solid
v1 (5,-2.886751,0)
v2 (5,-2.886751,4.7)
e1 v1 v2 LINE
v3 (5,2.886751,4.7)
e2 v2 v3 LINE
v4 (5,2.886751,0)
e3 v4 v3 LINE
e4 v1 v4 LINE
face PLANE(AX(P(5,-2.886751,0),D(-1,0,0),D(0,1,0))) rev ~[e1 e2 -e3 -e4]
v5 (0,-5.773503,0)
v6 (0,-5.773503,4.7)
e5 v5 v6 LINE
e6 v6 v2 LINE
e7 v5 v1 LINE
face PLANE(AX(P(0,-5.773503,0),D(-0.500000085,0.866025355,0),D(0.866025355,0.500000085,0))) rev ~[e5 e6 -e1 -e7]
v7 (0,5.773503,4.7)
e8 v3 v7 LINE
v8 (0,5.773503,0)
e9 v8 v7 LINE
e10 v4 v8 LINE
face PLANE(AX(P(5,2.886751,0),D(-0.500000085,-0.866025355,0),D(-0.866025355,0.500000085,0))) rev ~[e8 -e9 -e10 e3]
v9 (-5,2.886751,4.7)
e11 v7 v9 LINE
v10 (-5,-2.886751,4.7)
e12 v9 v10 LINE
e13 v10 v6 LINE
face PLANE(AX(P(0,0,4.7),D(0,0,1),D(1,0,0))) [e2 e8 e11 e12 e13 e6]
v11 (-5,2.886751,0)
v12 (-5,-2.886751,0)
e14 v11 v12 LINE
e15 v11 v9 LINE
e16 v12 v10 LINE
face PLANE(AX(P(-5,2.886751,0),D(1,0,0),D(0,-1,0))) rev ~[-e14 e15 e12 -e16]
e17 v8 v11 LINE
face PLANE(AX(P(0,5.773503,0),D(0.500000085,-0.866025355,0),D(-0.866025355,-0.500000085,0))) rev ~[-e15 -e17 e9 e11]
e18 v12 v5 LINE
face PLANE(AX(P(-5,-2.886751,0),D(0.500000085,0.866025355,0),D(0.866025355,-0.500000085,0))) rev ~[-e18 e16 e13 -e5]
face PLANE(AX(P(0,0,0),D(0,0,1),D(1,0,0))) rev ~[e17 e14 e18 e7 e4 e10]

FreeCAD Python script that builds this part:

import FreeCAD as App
import Part
import Sketcher
Q = App.Units.Quantity


def add_polygon(sketch, points):
    """Adds a closed chain of lines whose ends are joined by coincident constraints."""
    first, n = sketch.GeometryCount, len(points)
    for a, b in zip(points, points[1:] + points[:1]):
        sketch.addGeometry(Part.LineSegment(App.Vector(*a, 0), App.Vector(*b, 0)), False)
    for i in range(n):
        sketch.addConstraint(Sketcher.Constraint("Coincident", first + i, 2, first + (i + 1) % n, 1))

doc = App.newDocument("Part")
params = doc.addObject("Spreadsheet::Sheet", "Params")
for row, (alias, value) in enumerate([
    ("pad1_length", "4.7 mm"),
], start=1):
    params.set(f"A{row}", alias)
    params.set(f"B{row}", "=" + value)
    params.setAlias(f"B{row}", alias)

body = doc.addObject("PartDesign::Body", "Body")

sketch1 = body.newObject("Sketcher::SketchObject", "Sketch")
sketch1.AttachmentSupport = (doc.getObject("XY_Plane"), [""])
sketch1.MapMode = "FlatFace"
add_polygon(sketch1, [(5, 3), (0, 6), (-5, 3), (-5, -3), (0, -6), (5, -3)])
sketch1.addConstraint(Sketcher.Constraint("Vertical", 2))
sketch1.addConstraint(Sketcher.Constraint("Vertical", 5))
sketch1.addConstraint(Sketcher.Constraint("Symmetric", 0, 2, 3, 2, -1, 1))
sketch1.addConstraint(Sketcher.Constraint("Symmetric", 1, 2, 4, 2, -1, 1))
sketch1.addConstraint(Sketcher.Constraint("PointOnObject", 0, 2, -2))
sketch1.addConstraint(Sketcher.Constraint("Parallel", 0, 3))
sketch1.addConstraint(Sketcher.Constraint("Horizontal", 2, 2, 4, 2))
sketch1.addConstraint(Sketcher.Constraint("Angle", 0, Q("149.999994 deg")))
sketch1.addConstraint(Sketcher.Constraint("DistanceX", 1, 2, -1, 1, 5.0))
sketch1.addConstraint(Sketcher.Constraint("DistanceY", 2, 2, 2, 1, 5.773502))
pad1 = body.newObject("PartDesign::Pad", "Pad")
pad1.Profile = sketch1
pad1.setExpression("Length", "Params.pad1_length")

doc.recompute()
